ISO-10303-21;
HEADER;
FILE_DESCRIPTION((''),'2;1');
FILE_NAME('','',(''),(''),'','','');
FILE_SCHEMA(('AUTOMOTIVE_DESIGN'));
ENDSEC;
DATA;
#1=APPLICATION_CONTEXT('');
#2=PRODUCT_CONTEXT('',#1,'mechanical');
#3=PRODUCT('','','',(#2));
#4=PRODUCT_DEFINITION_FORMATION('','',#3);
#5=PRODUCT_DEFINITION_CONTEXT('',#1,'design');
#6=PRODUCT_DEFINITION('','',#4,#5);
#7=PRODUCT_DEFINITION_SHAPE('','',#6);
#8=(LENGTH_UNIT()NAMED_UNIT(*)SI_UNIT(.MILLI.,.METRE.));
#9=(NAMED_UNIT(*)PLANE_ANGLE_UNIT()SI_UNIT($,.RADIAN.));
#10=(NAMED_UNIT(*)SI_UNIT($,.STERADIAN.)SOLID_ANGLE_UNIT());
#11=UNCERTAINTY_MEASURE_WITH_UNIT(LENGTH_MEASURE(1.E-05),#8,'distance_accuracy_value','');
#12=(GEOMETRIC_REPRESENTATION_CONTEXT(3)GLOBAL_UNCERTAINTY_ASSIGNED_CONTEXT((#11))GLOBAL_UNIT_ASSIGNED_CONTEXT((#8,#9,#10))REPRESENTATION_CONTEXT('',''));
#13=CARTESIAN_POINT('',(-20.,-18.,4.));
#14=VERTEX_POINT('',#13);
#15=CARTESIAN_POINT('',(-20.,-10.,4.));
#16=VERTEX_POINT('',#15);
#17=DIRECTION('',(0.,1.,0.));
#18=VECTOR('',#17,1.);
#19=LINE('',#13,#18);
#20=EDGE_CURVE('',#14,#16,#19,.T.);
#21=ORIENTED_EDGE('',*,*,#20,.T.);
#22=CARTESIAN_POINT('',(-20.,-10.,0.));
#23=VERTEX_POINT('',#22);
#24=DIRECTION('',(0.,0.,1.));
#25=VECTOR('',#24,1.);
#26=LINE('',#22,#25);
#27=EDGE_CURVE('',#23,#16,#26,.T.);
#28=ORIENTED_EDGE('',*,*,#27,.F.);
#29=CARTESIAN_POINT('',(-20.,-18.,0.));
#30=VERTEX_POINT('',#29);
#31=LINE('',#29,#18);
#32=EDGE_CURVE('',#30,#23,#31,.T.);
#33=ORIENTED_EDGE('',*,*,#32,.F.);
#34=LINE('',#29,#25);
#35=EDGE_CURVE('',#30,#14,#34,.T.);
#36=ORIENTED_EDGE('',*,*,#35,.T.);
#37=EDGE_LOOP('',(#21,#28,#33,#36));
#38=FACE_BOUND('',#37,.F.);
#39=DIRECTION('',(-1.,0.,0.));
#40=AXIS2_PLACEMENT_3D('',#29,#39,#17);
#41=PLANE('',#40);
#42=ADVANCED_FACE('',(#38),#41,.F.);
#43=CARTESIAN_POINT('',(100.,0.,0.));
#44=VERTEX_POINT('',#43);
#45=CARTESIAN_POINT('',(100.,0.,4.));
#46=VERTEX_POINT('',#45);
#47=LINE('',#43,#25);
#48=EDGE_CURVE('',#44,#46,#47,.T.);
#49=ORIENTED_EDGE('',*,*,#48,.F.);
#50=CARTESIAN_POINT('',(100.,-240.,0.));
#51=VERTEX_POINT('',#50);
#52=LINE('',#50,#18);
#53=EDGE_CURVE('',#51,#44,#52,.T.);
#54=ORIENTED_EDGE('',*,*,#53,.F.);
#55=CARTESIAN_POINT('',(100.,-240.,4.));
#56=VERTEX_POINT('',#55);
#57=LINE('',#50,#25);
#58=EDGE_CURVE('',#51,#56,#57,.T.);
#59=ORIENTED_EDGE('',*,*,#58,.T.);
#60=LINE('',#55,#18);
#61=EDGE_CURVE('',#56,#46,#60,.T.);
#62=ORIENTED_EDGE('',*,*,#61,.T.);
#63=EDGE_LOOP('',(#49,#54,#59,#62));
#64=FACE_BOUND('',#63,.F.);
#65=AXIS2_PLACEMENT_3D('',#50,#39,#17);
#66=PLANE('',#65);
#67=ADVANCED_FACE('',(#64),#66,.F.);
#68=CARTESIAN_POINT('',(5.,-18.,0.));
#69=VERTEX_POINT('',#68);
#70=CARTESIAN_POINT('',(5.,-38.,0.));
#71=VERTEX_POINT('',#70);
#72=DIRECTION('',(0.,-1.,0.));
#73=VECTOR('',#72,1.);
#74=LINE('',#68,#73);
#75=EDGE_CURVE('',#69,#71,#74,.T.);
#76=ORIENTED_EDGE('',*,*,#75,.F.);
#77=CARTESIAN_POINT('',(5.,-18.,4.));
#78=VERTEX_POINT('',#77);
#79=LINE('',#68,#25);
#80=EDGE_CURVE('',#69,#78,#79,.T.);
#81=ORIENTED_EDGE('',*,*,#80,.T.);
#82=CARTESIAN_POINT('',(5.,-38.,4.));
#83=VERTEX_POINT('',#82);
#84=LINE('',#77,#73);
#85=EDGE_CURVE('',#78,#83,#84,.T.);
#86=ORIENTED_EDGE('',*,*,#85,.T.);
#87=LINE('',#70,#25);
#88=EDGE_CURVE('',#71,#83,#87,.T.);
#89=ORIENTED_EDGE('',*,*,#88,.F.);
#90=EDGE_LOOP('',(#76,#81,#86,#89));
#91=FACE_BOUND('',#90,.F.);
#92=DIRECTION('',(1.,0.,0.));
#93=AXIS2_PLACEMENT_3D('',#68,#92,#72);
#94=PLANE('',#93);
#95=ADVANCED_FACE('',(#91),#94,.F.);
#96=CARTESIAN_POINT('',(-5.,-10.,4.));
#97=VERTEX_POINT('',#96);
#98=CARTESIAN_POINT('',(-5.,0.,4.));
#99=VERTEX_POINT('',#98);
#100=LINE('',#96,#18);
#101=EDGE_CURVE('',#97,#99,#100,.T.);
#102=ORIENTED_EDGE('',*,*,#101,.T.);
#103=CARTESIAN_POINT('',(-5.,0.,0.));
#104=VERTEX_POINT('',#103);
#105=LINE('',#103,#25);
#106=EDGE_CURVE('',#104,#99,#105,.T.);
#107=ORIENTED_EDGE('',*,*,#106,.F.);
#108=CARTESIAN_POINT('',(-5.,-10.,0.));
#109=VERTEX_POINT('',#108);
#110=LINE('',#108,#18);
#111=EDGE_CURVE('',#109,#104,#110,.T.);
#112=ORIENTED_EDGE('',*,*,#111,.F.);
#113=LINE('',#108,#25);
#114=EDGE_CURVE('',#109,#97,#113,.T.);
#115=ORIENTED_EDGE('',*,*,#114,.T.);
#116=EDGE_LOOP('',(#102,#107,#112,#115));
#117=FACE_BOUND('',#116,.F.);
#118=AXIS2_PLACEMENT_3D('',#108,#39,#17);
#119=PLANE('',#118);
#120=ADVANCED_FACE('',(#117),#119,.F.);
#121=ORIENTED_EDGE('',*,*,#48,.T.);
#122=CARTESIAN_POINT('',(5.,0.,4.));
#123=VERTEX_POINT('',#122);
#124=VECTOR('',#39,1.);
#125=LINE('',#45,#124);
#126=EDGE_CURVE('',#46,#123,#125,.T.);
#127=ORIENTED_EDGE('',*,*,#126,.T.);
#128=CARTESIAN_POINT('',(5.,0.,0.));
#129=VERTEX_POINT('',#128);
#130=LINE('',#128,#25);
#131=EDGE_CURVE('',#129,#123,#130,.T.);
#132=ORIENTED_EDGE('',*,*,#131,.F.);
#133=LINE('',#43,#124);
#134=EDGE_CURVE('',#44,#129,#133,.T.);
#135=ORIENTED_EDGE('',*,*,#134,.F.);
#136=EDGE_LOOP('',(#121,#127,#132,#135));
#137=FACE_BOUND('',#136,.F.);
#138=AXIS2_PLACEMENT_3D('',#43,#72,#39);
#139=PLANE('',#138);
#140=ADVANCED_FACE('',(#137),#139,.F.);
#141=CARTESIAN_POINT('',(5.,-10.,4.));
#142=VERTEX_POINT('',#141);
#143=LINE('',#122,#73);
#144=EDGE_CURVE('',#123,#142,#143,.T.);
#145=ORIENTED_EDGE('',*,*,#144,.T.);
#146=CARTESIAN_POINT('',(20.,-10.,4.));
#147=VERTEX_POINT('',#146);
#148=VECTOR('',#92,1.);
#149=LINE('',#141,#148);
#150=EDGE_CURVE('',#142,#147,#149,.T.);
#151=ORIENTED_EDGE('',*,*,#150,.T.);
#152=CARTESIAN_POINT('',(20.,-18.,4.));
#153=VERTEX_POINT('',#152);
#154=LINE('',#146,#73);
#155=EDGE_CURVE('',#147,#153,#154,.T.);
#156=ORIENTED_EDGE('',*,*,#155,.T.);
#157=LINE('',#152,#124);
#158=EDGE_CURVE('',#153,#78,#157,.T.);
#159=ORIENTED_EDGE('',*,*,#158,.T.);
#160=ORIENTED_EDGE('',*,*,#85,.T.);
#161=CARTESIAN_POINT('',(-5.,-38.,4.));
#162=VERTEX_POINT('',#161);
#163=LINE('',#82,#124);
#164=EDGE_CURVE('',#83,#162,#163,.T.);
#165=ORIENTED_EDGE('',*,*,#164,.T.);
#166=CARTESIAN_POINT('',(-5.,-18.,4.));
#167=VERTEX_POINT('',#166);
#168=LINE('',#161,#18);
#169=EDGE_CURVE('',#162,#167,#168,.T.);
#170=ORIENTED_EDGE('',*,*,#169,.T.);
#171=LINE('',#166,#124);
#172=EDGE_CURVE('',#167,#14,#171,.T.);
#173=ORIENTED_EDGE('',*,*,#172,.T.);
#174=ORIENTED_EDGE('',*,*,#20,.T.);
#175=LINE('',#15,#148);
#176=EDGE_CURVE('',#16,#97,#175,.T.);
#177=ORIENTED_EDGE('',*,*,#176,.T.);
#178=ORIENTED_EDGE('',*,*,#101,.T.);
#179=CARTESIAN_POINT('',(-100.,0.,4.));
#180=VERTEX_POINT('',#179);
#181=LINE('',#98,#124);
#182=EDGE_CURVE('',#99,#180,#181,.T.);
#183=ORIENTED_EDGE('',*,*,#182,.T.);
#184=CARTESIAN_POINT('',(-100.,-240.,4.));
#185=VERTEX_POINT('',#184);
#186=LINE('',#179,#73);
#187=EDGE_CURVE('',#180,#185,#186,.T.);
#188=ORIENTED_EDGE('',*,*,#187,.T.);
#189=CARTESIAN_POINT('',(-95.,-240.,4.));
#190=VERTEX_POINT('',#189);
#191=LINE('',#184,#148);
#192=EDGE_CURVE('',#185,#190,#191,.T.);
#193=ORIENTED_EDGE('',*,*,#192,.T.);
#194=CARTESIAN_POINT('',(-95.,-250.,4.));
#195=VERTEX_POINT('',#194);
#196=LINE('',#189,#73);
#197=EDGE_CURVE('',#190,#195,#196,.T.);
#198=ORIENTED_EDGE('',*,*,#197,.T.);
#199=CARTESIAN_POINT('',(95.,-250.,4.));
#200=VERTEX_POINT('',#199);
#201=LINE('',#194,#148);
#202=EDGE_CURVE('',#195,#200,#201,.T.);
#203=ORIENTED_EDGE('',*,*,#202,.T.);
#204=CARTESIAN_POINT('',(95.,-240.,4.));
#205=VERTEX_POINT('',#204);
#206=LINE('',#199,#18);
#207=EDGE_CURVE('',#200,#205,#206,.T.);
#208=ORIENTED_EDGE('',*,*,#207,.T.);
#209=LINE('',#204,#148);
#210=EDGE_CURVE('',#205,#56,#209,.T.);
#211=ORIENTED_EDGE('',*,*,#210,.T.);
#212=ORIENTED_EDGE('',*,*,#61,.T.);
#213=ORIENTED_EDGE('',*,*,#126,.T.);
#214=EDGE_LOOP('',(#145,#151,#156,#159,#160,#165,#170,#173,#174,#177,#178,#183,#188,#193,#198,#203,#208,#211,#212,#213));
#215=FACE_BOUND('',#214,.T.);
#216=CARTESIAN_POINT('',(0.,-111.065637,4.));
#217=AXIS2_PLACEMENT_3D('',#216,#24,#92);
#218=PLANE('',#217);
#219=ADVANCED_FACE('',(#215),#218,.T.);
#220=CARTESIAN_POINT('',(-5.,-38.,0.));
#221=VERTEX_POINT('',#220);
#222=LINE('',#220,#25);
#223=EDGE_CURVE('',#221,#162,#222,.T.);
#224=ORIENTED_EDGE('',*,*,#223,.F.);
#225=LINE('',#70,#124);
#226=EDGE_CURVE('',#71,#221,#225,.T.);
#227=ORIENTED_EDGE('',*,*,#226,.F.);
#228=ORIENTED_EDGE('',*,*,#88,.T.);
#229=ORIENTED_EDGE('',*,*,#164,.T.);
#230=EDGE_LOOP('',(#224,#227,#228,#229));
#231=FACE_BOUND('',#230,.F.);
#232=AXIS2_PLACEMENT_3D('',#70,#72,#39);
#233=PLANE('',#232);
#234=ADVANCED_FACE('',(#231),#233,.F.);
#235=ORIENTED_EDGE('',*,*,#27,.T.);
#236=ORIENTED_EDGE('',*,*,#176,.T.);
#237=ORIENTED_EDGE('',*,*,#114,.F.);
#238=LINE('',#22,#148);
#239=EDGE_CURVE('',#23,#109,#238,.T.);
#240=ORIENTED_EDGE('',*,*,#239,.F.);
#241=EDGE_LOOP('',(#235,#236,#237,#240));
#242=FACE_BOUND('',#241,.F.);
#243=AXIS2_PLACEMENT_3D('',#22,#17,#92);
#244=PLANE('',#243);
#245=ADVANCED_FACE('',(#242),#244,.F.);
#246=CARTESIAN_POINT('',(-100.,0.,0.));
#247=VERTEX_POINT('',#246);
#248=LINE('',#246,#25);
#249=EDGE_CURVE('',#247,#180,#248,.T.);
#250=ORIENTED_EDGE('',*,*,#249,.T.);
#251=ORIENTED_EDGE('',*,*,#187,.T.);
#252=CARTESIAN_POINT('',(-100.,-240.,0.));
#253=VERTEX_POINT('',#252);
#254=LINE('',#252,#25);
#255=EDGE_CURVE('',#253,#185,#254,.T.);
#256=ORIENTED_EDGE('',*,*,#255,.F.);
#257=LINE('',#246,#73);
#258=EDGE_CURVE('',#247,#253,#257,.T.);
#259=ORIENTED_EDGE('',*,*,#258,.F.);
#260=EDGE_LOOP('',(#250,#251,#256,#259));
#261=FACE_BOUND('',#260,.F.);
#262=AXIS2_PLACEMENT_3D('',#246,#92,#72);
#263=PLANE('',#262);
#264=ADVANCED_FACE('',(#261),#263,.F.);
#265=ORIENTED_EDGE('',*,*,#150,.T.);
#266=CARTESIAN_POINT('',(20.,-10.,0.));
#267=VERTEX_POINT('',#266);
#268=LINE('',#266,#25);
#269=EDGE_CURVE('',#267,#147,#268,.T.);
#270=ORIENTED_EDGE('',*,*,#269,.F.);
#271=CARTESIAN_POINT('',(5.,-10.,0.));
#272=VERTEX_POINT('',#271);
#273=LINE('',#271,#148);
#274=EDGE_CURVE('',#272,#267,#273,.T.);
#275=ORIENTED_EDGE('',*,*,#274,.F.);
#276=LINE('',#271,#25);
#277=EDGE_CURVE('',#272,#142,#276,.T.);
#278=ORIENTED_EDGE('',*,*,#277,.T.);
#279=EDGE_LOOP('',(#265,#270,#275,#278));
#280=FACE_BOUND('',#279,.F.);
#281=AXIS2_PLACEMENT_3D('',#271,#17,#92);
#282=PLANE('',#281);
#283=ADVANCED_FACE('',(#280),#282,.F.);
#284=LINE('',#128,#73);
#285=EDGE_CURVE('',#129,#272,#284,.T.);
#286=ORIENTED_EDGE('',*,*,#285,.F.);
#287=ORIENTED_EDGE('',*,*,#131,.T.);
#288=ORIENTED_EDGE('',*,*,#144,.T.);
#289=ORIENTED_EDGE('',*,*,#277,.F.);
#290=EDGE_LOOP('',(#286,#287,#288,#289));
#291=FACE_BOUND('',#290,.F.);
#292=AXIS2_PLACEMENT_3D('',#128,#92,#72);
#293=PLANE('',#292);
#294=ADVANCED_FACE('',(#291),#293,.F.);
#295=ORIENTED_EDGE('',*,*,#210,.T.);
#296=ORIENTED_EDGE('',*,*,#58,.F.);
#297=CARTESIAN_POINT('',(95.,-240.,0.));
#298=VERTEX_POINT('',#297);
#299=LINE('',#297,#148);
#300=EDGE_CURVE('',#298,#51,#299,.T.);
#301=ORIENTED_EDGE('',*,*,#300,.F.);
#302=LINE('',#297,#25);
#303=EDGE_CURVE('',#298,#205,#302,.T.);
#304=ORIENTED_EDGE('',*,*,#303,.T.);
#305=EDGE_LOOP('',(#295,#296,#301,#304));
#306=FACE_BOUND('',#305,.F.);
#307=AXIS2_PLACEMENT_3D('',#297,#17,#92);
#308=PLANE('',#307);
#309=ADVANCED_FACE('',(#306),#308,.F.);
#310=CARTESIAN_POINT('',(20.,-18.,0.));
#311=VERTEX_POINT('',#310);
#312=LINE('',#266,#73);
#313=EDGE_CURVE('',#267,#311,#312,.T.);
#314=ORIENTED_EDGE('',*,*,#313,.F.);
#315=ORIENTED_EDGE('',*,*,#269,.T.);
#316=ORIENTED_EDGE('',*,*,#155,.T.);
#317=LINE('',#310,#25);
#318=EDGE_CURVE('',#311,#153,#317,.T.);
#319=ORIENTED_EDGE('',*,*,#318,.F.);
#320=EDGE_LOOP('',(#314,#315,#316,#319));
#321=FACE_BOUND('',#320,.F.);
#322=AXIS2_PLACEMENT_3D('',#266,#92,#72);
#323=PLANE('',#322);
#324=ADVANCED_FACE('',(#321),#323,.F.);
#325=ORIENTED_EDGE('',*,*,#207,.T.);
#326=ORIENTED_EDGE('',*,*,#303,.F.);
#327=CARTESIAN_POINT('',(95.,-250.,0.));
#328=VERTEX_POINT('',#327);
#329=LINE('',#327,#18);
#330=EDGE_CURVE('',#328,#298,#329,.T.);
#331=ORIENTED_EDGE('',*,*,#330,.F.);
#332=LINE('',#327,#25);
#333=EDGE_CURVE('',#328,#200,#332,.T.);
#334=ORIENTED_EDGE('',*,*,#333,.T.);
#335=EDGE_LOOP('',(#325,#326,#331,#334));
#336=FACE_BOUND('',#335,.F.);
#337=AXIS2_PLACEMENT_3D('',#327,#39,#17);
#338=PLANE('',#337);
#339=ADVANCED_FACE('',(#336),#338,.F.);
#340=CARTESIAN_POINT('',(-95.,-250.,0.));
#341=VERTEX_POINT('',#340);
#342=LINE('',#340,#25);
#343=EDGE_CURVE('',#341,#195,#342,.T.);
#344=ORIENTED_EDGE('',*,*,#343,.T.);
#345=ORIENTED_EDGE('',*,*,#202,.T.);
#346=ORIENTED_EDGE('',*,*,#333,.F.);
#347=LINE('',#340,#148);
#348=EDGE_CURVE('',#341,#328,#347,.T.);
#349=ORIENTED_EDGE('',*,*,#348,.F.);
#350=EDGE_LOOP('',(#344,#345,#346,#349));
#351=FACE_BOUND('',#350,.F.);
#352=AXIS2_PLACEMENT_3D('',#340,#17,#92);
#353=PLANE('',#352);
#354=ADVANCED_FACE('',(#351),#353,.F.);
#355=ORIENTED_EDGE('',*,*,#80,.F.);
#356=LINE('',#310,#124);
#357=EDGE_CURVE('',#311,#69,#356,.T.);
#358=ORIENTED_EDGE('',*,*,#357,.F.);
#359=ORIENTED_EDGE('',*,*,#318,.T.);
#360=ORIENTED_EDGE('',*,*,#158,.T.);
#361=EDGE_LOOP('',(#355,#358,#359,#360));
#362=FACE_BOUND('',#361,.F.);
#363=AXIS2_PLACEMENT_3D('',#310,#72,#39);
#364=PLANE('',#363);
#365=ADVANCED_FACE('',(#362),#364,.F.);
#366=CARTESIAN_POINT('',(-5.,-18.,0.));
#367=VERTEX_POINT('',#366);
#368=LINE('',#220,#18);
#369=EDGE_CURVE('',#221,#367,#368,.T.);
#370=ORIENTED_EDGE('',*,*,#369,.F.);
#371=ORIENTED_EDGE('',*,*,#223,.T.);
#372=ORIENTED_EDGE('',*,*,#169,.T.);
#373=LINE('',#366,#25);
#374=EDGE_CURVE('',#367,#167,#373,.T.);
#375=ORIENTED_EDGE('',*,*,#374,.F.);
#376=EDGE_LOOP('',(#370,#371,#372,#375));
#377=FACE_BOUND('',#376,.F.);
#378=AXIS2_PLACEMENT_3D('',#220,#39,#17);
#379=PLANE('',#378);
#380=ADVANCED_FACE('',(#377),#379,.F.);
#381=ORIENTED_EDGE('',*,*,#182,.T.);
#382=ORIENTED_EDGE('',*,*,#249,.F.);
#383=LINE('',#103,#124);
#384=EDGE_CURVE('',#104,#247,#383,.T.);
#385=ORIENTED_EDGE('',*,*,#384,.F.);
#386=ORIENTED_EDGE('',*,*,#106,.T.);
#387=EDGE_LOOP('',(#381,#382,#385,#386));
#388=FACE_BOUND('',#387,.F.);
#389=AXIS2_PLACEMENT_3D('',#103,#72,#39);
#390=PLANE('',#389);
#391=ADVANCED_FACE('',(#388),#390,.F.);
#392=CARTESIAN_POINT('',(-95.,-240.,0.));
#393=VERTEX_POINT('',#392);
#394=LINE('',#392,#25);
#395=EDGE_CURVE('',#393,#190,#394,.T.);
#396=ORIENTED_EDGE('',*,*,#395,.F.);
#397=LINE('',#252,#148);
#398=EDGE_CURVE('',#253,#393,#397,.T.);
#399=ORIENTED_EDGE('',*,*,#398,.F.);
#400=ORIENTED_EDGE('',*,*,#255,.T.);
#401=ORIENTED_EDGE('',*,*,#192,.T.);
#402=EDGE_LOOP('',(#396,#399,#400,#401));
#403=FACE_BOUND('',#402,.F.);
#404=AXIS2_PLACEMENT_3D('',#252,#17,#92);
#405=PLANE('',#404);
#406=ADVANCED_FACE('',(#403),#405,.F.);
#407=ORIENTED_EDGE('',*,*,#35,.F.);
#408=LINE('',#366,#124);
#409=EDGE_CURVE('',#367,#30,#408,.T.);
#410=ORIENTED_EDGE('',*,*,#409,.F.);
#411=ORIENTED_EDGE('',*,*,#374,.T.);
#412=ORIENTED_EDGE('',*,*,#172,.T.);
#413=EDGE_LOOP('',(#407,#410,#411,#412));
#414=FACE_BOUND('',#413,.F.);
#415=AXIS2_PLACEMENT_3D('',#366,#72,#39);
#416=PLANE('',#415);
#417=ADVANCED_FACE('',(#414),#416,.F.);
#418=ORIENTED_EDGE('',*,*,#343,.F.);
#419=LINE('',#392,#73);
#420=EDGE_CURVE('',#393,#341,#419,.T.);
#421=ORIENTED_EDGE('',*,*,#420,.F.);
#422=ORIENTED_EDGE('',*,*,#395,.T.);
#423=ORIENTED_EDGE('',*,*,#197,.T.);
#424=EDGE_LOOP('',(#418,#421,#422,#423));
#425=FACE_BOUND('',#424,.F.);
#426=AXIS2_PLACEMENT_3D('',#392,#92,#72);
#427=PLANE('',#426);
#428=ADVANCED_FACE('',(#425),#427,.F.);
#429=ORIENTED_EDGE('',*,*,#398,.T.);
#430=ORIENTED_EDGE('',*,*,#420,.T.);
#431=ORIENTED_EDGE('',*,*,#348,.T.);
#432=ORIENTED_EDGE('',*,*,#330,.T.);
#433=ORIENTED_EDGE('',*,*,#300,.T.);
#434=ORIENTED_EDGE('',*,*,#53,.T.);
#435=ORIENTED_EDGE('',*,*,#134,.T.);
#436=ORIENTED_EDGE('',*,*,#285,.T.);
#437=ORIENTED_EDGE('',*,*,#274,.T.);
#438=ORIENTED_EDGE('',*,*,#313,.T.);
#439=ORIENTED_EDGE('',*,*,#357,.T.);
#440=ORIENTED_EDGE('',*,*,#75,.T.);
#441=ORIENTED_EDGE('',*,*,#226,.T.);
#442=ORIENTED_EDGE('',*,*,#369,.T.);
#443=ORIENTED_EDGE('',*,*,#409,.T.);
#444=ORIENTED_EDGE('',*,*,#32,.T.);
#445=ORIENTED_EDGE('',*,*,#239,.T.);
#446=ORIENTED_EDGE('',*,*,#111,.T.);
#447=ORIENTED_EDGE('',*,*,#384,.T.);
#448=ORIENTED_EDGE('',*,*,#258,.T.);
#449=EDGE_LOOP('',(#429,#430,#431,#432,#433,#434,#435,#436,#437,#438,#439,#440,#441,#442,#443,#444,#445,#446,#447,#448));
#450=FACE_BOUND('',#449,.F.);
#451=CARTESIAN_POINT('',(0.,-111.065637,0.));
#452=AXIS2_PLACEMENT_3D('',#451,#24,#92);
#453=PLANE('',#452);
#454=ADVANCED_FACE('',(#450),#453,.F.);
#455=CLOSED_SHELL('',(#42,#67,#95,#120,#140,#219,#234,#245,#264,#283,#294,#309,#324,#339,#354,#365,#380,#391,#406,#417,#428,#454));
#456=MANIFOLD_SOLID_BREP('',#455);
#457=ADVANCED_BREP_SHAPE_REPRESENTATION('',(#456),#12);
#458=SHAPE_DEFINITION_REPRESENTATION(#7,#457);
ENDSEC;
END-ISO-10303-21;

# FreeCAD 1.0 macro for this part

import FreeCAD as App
import Part
import Sketcher

V = App.Vector
Q = App.Units.Quantity


def add_polygon(sketch, points):
    """Adds a closed chain of lines whose ends are joined by coincident constraints."""
    first, n = sketch.GeometryCount, len(points)
    for a, b in zip(points, points[1:] + points[:1]):
        sketch.addGeometry(Part.LineSegment(App.Vector(*a, 0), App.Vector(*b, 0)), False)
    for i in range(n):
        sketch.addConstraint(Sketcher.Constraint("Coincident", first + i, 2, first + (i + 1) % n, 1))

doc = App.newDocument("Part")
body = doc.addObject("PartDesign::Body", "Body")

# Sketch on XY plane
sketch1 = body.newObject("Sketcher::SketchObject", "Sketch")
sketch1.AttachmentSupport = (doc.getObject("XY_Plane"), [""])
sketch1.MapMode = "FlatFace"
add_polygon(sketch1, [(5, -10), (20, -10), (20, -18), (5, -18), (5, -38), (-5, -38), (-5, -18), (-20, -18), (-20, -10), (-5, -10), (-5, 0), (-100, 0), (-100, -240), (-95, -240), (-95, -250), (95, -250), (95, -240), (100, -240), (100, 0), (5, 0)])  # lines 0-19
sketch1.addConstraint(Sketcher.Constraint("Horizontal", 0))
sketch1.addConstraint(Sketcher.Constraint("Vertical", 1))
sketch1.addConstraint(Sketcher.Constraint("Horizontal", 2))
sketch1.addConstraint(Sketcher.Constraint("Vertical", 3))
sketch1.addConstraint(Sketcher.Constraint("Horizontal", 4))
sketch1.addConstraint(Sketcher.Constraint("Vertical", 5))
sketch1.addConstraint(Sketcher.Constraint("Horizontal", 6))
sketch1.addConstraint(Sketcher.Constraint("Vertical", 7))
sketch1.addConstraint(Sketcher.Constraint("Horizontal", 8))
sketch1.addConstraint(Sketcher.Constraint("Vertical", 9))
sketch1.addConstraint(Sketcher.Constraint("Horizontal", 10))
sketch1.addConstraint(Sketcher.Constraint("Vertical", 11))
sketch1.addConstraint(Sketcher.Constraint("Horizontal", 12))
sketch1.addConstraint(Sketcher.Constraint("Vertical", 13))
sketch1.addConstraint(Sketcher.Constraint("Horizontal", 14))
sketch1.addConstraint(Sketcher.Constraint("Vertical", 15))
sketch1.addConstraint(Sketcher.Constraint("Horizontal", 16))
sketch1.addConstraint(Sketcher.Constraint("Vertical", 17))
sketch1.addConstraint(Sketcher.Constraint("Horizontal", 18))
sketch1.addConstraint(Sketcher.Constraint("Vertical", 19))
sketch1.addConstraint(Sketcher.Constraint("Symmetric", 10, 2, 17, 2, -1, 1))
sketch1.addConstraint(Sketcher.Constraint("Symmetric", 2, 2, 5, 2, -2))
sketch1.addConstraint(Sketcher.Constraint("Symmetric", 0, 2, 7, 2, -2))
sketch1.addConstraint(Sketcher.Constraint("Symmetric", 12, 2, 15, 2, -2))
sketch1.addConstraint(Sketcher.Constraint("Symmetric", 9, 2, 18, 2, -2))
sketch1.addConstraint(Sketcher.Constraint("Vertical", 5, 2, 8, 2))
sketch1.addConstraint(Sketcher.Constraint("Equal", 4, 9))
sketch1.addConstraint(Sketcher.Constraint("Equal", 9, 13))
sketch1.addConstraint(Sketcher.Constraint("DistanceX", 0, 1, 0, 2, Q("15 mm")))
sketch1.addConstraint(Sketcher.Constraint("DistanceX", 4, 2, 4, 1, Q("10 mm")))
sketch1.addConstraint(Sketcher.Constraint("DistanceX", 10, 2, 10, 1, Q("95 mm")))
sketch1.addConstraint(Sketcher.Constraint("DistanceX", 12, 1, 12, 2, Q("5 mm")))
sketch1.addConstraint(Sketcher.Constraint("DistanceY", 1, 2, 1, 1, Q("8 mm")))
sketch1.addConstraint(Sketcher.Constraint("DistanceY", 3, 2, 3, 1, Q("20 mm")))
sketch1.addConstraint(Sketcher.Constraint("DistanceY", 11, 2, 11, 1, Q("240 mm")))
pad1 = body.newObject("PartDesign::Pad", "Pad")
pad1.Profile = sketch1
pad1.Length = 4

doc.recompute()
